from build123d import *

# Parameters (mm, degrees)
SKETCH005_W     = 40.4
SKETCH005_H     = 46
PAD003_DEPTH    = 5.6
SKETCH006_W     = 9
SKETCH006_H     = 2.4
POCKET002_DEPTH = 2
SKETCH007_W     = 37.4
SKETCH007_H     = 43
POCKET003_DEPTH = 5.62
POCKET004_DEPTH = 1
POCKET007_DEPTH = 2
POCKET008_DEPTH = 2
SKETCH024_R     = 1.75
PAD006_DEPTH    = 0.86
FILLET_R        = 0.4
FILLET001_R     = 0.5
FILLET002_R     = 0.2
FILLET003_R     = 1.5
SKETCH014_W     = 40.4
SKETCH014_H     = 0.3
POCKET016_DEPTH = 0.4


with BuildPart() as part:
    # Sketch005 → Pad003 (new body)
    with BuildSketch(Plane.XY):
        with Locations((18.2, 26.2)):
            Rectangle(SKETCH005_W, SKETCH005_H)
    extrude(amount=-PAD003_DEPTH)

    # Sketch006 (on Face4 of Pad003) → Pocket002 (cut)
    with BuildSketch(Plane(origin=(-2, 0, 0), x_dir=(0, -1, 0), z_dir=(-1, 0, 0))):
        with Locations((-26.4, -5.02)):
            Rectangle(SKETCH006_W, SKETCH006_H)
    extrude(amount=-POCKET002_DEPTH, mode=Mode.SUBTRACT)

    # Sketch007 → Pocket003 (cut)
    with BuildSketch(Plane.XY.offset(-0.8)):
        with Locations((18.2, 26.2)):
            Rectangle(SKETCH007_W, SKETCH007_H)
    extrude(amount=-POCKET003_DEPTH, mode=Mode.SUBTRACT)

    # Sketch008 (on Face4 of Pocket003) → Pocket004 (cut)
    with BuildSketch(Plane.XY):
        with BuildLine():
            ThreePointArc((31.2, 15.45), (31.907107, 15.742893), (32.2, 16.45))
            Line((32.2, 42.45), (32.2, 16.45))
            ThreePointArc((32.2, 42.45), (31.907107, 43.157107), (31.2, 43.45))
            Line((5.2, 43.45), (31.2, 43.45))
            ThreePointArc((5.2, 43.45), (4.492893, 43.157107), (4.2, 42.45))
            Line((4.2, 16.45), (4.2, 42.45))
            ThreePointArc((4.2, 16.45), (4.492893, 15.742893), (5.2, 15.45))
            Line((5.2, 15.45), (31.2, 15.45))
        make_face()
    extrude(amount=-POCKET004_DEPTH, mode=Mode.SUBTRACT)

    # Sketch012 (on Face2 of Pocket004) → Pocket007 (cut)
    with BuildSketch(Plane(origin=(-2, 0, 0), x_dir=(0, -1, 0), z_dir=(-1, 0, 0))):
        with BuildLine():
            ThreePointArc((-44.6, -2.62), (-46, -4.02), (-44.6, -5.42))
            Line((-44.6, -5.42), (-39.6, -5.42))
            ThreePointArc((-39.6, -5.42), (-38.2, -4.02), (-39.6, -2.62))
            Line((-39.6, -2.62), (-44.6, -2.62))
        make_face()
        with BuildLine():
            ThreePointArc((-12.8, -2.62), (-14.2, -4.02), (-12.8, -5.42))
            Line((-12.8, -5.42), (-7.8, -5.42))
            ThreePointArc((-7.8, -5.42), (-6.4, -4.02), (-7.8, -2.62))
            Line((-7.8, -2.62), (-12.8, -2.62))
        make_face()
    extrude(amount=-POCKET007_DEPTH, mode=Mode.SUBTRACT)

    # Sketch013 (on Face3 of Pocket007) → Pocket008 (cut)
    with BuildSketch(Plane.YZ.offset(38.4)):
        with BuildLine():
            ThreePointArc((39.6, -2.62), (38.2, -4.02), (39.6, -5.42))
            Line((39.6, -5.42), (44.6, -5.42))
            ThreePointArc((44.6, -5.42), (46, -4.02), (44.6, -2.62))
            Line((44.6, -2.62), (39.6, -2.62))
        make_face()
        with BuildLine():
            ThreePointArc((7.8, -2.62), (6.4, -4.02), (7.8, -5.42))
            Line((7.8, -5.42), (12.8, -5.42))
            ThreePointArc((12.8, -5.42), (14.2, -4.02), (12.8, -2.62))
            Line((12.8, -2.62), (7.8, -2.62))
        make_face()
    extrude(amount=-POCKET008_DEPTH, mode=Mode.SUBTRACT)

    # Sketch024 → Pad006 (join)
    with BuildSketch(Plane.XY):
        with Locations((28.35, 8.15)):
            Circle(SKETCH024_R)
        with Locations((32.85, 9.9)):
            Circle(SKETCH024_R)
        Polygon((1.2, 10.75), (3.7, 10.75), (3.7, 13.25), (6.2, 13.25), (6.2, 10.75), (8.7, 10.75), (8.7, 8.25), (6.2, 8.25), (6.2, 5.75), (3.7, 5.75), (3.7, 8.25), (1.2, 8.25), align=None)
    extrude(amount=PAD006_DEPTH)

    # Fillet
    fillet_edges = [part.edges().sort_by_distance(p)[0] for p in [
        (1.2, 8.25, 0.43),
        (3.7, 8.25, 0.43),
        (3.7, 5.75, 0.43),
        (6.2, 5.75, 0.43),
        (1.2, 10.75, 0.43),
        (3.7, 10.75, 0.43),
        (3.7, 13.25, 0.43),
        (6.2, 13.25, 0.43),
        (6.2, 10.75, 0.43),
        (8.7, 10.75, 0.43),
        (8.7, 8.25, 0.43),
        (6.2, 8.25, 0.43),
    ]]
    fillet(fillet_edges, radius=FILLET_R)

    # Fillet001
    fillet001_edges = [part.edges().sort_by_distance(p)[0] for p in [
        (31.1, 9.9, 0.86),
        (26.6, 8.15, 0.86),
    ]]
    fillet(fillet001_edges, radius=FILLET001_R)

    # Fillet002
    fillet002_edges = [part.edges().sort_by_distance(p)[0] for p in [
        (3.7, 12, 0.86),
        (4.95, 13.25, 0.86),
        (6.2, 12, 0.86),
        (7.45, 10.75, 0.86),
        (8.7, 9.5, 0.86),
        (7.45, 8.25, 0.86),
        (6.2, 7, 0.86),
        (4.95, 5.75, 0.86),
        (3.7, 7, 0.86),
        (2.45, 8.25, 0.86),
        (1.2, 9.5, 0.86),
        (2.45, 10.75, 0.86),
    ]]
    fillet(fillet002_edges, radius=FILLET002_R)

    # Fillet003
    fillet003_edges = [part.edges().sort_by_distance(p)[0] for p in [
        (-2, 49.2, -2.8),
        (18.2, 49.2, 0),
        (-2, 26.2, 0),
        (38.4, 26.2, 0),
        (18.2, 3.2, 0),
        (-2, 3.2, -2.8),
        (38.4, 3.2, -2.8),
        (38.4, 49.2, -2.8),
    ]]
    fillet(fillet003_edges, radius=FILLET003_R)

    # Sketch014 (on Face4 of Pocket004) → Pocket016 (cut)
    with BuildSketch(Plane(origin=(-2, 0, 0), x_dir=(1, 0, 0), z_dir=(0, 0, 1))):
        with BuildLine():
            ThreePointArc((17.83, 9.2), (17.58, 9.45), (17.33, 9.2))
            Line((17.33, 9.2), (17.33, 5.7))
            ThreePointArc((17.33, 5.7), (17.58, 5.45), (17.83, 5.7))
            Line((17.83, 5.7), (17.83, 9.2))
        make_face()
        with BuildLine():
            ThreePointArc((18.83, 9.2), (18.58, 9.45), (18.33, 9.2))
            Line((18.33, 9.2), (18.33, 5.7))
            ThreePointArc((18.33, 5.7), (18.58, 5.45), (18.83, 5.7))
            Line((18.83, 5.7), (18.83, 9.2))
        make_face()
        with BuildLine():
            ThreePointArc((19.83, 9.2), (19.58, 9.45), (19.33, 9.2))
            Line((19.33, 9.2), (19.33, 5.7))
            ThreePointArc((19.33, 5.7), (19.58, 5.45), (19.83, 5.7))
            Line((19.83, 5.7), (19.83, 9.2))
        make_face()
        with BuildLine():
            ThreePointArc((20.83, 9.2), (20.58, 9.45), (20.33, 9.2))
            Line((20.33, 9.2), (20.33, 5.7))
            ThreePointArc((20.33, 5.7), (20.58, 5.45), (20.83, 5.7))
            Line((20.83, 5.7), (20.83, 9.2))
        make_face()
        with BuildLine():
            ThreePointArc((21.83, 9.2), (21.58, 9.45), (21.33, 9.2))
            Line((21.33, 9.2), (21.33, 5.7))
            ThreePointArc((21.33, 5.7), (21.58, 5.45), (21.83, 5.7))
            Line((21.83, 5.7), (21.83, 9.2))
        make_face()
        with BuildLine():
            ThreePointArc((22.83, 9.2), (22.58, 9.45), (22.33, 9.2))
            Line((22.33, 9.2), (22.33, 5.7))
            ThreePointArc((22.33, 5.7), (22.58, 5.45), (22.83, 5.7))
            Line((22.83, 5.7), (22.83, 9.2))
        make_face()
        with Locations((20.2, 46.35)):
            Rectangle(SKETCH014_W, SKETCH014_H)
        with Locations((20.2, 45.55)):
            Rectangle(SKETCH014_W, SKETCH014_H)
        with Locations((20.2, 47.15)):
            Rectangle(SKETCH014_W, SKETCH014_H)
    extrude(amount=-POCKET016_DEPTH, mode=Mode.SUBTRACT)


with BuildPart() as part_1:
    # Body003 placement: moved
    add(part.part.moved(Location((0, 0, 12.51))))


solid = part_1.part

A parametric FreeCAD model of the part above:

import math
import FreeCAD as App
import Part
import Sketcher
from FreeCAD import Vector


def edges_at(feature, points):
    """Names of the edges that pass closest to the given points."""
    edges = feature.Shape.Edges
    near = lambda p: min(range(len(edges)), key=lambda i: edges[i].distToShape(Part.Vertex(*p))[0])
    return sorted({f"Edge{near(p) + 1}" for p in points})

doc = App.newDocument("Part")
body = doc.addObject("PartDesign::Body", "Body")

# Sketch on XY plane
sketch1 = doc.addObject("Sketcher::SketchObject", "Sketch")
body.addObject(sketch1)
sketch1.AttachmentSupport = (doc.XY_Plane, [""])
sketch1.MapMode = "FlatFace"
sketch1.addGeometry(Part.LineSegment(Vector(-2, 49.2, 0), Vector(-2, 3.2, 0)), False)
sketch1.addGeometry(Part.LineSegment(Vector(-2, 3.2, 0), Vector(38.4, 3.2, 0)), False)
sketch1.addGeometry(Part.LineSegment(Vector(38.4, 3.2, 0), Vector(38.4, 49.2, 0)), False)
sketch1.addGeometry(Part.LineSegment(Vector(38.4, 49.2, 0), Vector(-2, 49.2, 0)), False)
sketch1.addConstraint(Sketcher.Constraint("Coincident", 0, 2, 1, 1))
sketch1.addConstraint(Sketcher.Constraint("Coincident", 1, 2, 2, 1))
sketch1.addConstraint(Sketcher.Constraint("Coincident", 2, 2, 3, 1))
sketch1.addConstraint(Sketcher.Constraint("Coincident", 3, 2, 0, 1))
sketch1.addConstraint(Sketcher.Constraint("Vertical", 0))
sketch1.addConstraint(Sketcher.Constraint("Horizontal", 1))
sketch1.addConstraint(Sketcher.Constraint("Vertical", 2))
sketch1.addConstraint(Sketcher.Constraint("Horizontal", 3))
sketch1.addConstraint(Sketcher.Constraint("DistanceY", 0, 2, 0, 1, 46.0))
sketch1.addConstraint(Sketcher.Constraint("DistanceX", 1, 1, 1, 2, 40.4))
sketch1.addConstraint(Sketcher.Constraint("DistanceX", 0, 2, -1, 1, 2.0))
sketch1.addConstraint(Sketcher.Constraint("DistanceY", -1, 1, 0, 2, 3.2))
pad1 = doc.addObject("PartDesign::Pad", "Pad")
body.addObject(pad1)
pad1.Profile = sketch1
pad1.Length = 5.6
pad1.Reversed = True

# Sketch on YZ plane
sketch2 = doc.addObject("Sketcher::SketchObject", "Sketch001")
body.addObject(sketch2)
sketch2.AttachmentSupport = (doc.YZ_Plane, [""])
sketch2.MapMode = "FlatFace"
sketch2.AttachmentOffset = App.Placement(Vector(0, 0, -2), App.Rotation())
sketch2.addGeometry(Part.LineSegment(Vector(30.9, -3.82, 0), Vector(30.9, -6.22, 0)), False)
sketch2.addGeometry(Part.LineSegment(Vector(30.9, -6.22, 0), Vector(21.9, -6.22, 0)), False)
sketch2.addGeometry(Part.LineSegment(Vector(21.9, -6.22, 0), Vector(21.9, -3.82, 0)), False)
sketch2.addGeometry(Part.LineSegment(Vector(21.9, -3.82, 0), Vector(30.9, -3.82, 0)), False)
sketch2.addConstraint(Sketcher.Constraint("Coincident", 0, 2, 1, 1))
sketch2.addConstraint(Sketcher.Constraint("Coincident", 1, 2, 2, 1))
sketch2.addConstraint(Sketcher.Constraint("Coincident", 2, 2, 3, 1))
sketch2.addConstraint(Sketcher.Constraint("Coincident", 3, 2, 0, 1))
sketch2.addConstraint(Sketcher.Constraint("Vertical", 0))
sketch2.addConstraint(Sketcher.Constraint("Horizontal", 1))
sketch2.addConstraint(Sketcher.Constraint("Vertical", 2))
sketch2.addConstraint(Sketcher.Constraint("Horizontal", 3))
sketch2.addConstraint(Sketcher.Constraint("DistanceX", 1, 2, 1, 1, 9.0))
sketch2.addConstraint(Sketcher.Constraint("DistanceY", 0, 2, 0, 1, 2.4))
sketch2.addConstraint(Sketcher.Constraint("DistanceX", -1, 1, 0, 2, 30.9))
sketch2.addConstraint(Sketcher.Constraint("DistanceY", 0, 2, -1, 1, 6.22))
pocket1 = doc.addObject("PartDesign::Pocket", "Pocket")
body.addObject(pocket1)
pocket1.Profile = sketch2
pocket1.Length = 2
pocket1.Reversed = True

# Sketch on XY plane
sketch3 = doc.addObject("Sketcher::SketchObject", "Sketch002")
body.addObject(sketch3)
sketch3.AttachmentSupport = (doc.XY_Plane, [""])
sketch3.MapMode = "FlatFace"
sketch3.AttachmentOffset = App.Placement(Vector(0, 0, -0.8), App.Rotation())
sketch3.addGeometry(Part.LineSegment(Vector(-0.5, 47.7, 0), Vector(-0.5, 4.7, 0)), False)
sketch3.addGeometry(Part.LineSegment(Vector(-0.5, 4.7, 0), Vector(36.9, 4.7, 0)), False)
sketch3.addGeometry(Part.LineSegment(Vector(36.9, 4.7, 0), Vector(36.9, 47.7, 0)), False)
sketch3.addGeometry(Part.LineSegment(Vector(36.9, 47.7, 0), Vector(-0.5, 47.7, 0)), False)
sketch3.addConstraint(Sketcher.Constraint("Coincident", 0, 2, 1, 1))
sketch3.addConstraint(Sketcher.Constraint("Coincident", 1, 2, 2, 1))
sketch3.addConstraint(Sketcher.Constraint("Coincident", 2, 2, 3, 1))
sketch3.addConstraint(Sketcher.Constraint("Coincident", 3, 2, 0, 1))
sketch3.addConstraint(Sketcher.Constraint("Vertical", 0))
sketch3.addConstraint(Sketcher.Constraint("Horizontal", 1))
sketch3.addConstraint(Sketcher.Constraint("Vertical", 2))
sketch3.addConstraint(Sketcher.Constraint("Horizontal", 3))
sketch3.addConstraint(Sketcher.Constraint("DistanceY", 0, 2, 0, 1, 43.0))
sketch3.addConstraint(Sketcher.Constraint("DistanceX", 1, 1, 1, 2, 37.4))
sketch3.addConstraint(Sketcher.Constraint("DistanceX", 0, 2, -1, 1, 0.5))
sketch3.addConstraint(Sketcher.Constraint("DistanceY", -1, 1, 0, 2, 4.7))
pocket2 = doc.addObject("PartDesign::Pocket", "Pocket001")
body.addObject(pocket2)
pocket2.Profile = sketch3
pocket2.Length = 5.62

# Sketch on XY plane
sketch4 = doc.addObject("Sketcher::SketchObject", "Sketch003")
body.addObject(sketch4)
sketch4.AttachmentSupport = (doc.XY_Plane, [""])
sketch4.MapMode = "FlatFace"
sketch4.addGeometry(Part.ArcOfCircle(Part.Circle(Vector(31.200001, 16.449999, 0), Vector(0, 0, 1), 0.999999), math.radians(-90.000043), math.radians(0.000043)), False)
sketch4.addGeometry(Part.LineSegment(Vector(32.2, 16.45, 0), Vector(32.2, 42.45, 0)), False)
sketch4.addGeometry(Part.ArcOfCircle(Part.Circle(Vector(31.200001, 42.450001, 0), Vector(0, 0, 1), 0.999999), math.radians(-0.000043), math.radians(90.000043)), False)
sketch4.addGeometry(Part.LineSegment(Vector(31.2, 43.45, 0), Vector(5.2, 43.45, 0)), False)
sketch4.addGeometry(Part.ArcOfCircle(Part.Circle(Vector(5.199999, 42.450001, 0), Vector(0, 0, 1), 0.999999), math.radians(89.999957), math.radians(180.000043)), False)
sketch4.addGeometry(Part.LineSegment(Vector(4.2, 42.45, 0), Vector(4.2, 16.45, 0)), False)
sketch4.addGeometry(Part.ArcOfCircle(Part.Circle(Vector(5.199999, 16.449999, 0), Vector(0, 0, 1), 0.999999), math.radians(179.999957), math.radians(270.000043)), False)
sketch4.addGeometry(Part.LineSegment(Vector(5.2, 15.45, 0), Vector(31.2, 15.45, 0)), False)
sketch4.addConstraint(Sketcher.Constraint("Tangent", 0, 2, 1, 1))
sketch4.addConstraint(Sketcher.Constraint("Tangent", 1, 2, 2, 1))
sketch4.addConstraint(Sketcher.Constraint("Tangent", 2, 2, 3, 1))
sketch4.addConstraint(Sketcher.Constraint("Tangent", 3, 2, 4, 1))
sketch4.addConstraint(Sketcher.Constraint("Tangent", 4, 2, 5, 1))
sketch4.addConstraint(Sketcher.Constraint("Tangent", 5, 2, 6, 1))
sketch4.addConstraint(Sketcher.Constraint("Tangent", 6, 2, 7, 1))
sketch4.addConstraint(Sketcher.Constraint("Tangent", 7, 2, 0, 1))
sketch4.addConstraint(Sketcher.Constraint("Vertical", 1))
sketch4.addConstraint(Sketcher.Constraint("Horizontal", 3))
sketch4.addConstraint(Sketcher.Constraint("Vertical", 5))
sketch4.addConstraint(Sketcher.Constraint("Horizontal", 7))
sketch4.addConstraint(Sketcher.Constraint("Equal", 0, 2))
sketch4.addConstraint(Sketcher.Constraint("Equal", 2, 4))
sketch4.addConstraint(Sketcher.Constraint("Equal", 4, 6))
sketch4.addConstraint(Sketcher.Constraint("Equal", 7, 1))
sketch4.addConstraint(Sketcher.Constraint("Radius", 0, 0.999999))
sketch4.addConstraint(Sketcher.Constraint("DistanceX", 3, 2, 3, 1, 26.0))
sketch4.addConstraint(Sketcher.Constraint("DistanceX", -1, 1, 0, 3, 31.200001))
sketch4.addConstraint(Sketcher.Constraint("DistanceY", -1, 1, 0, 3, 16.449999))
pocket3 = doc.addObject("PartDesign::Pocket", "Pocket002")
body.addObject(pocket3)
pocket3.Profile = sketch4
pocket3.Length = 1

# Sketch on YZ plane
sketch5 = doc.addObject("Sketcher::SketchObject", "Sketch004")
body.addObject(sketch5)
sketch5.AttachmentSupport = (doc.YZ_Plane, [""])
sketch5.MapMode = "FlatFace"
sketch5.AttachmentOffset = App.Placement(Vector(0, 0, -2), App.Rotation())
sketch5.addGeometry(Part.ArcOfCircle(Part.Circle(Vector(44.6, -4.02, 0), Vector(0, 0, 1), 1.4), math.radians(-90), math.radians(90)), False)
sketch5.addGeometry(Part.LineSegment(Vector(44.6, -5.42, 0), Vector(39.6, -5.42, 0)), False)
sketch5.addGeometry(Part.ArcOfCircle(Part.Circle(Vector(39.6, -4.02, 0), Vector(0, 0, 1), 1.4), math.radians(90), math.radians(270)), False)
sketch5.addGeometry(Part.LineSegment(Vector(39.6, -2.62, 0), Vector(44.6, -2.62, 0)), False)
sketch5.addGeometry(Part.ArcOfCircle(Part.Circle(Vector(12.8, -4.02, 0), Vector(0, 0, 1), 1.4), math.radians(-90), math.radians(90)), False)
sketch5.addGeometry(Part.LineSegment(Vector(12.8, -5.42, 0), Vector(7.8, -5.42, 0)), False)
sketch5.addGeometry(Part.ArcOfCircle(Part.Circle(Vector(7.8, -4.02, 0), Vector(0, 0, 1), 1.4), math.radians(90), math.radians(270)), False)
sketch5.addGeometry(Part.LineSegment(Vector(7.8, -2.62, 0), Vector(12.8, -2.62, 0)), False)
sketch5.addConstraint(Sketcher.Constraint("Tangent", 0, 1, 1, 1))
sketch5.addConstraint(Sketcher.Constraint("Tangent", 1, 2, 2, 2))
sketch5.addConstraint(Sketcher.Constraint("Tangent", 2, 1, 3, 1))
sketch5.addConstraint(Sketcher.Constraint("Tangent", 3, 2, 0, 2))
sketch5.addConstraint(Sketcher.Constraint("Tangent", 4, 1, 5, 1))
sketch5.addConstraint(Sketcher.Constraint("Tangent", 5, 2, 6, 2))
sketch5.addConstraint(Sketcher.Constraint("Tangent", 6, 1, 7, 1))
sketch5.addConstraint(Sketcher.Constraint("Tangent", 7, 2, 4, 2))
sketch5.addConstraint(Sketcher.Constraint("Horizontal", 1))
sketch5.addConstraint(Sketcher.Constraint("Horizontal", 3))
sketch5.addConstraint(Sketcher.Constraint("Horizontal", 5))
sketch5.addConstraint(Sketcher.Constraint("Horizontal", 7))
sketch5.addConstraint(Sketcher.Constraint("Equal", 2, 4))
sketch5.addConstraint(Sketcher.Constraint("Horizontal", 2, 3, 4, 3))
sketch5.addConstraint(Sketcher.Constraint("Equal", 3, 5))
sketch5.addConstraint(Sketcher.Constraint("Radius", 0, 1.4))
sketch5.addConstraint(Sketcher.Constraint("DistanceX", 1, 2, 1, 1, 5.0))
sketch5.addConstraint(Sketcher.Constraint("DistanceX", -1, 1, 0, 3, 44.6))
sketch5.addConstraint(Sketcher.Constraint("DistanceX", -1, 1, 4, 3, 12.8))
sketch5.addConstraint(Sketcher.Constraint("DistanceY", 0, 3, -1, 1, 4.02))
pocket4 = doc.addObject("PartDesign::Pocket", "Pocket003")
body.addObject(pocket4)
pocket4.Profile = sketch5
pocket4.Length = 2
pocket4.Reversed = True

# Sketch on YZ plane
sketch6 = doc.addObject("Sketcher::SketchObject", "Sketch005")
body.addObject(sketch6)
sketch6.AttachmentSupport = (doc.YZ_Plane, [""])
sketch6.MapMode = "FlatFace"
sketch6.AttachmentOffset = App.Placement(Vector(0, 0, 38.4), App.Rotation())
sketch6.addGeometry(Part.ArcOfCircle(Part.Circle(Vector(39.6, -4.02, 0), Vector(0, 0, 1), 1.4), math.radians(90), math.radians(270)), False)
sketch6.addGeometry(Part.LineSegment(Vector(39.6, -5.42, 0), Vector(44.6, -5.42, 0)), False)
sketch6.addGeometry(Part.ArcOfCircle(Part.Circle(Vector(44.6, -4.02, 0), Vector(0, 0, 1), 1.4), math.radians(-90), math.radians(90)), False)
sketch6.addGeometry(Part.LineSegment(Vector(44.6, -2.62, 0), Vector(39.6, -2.62, 0)), False)
sketch6.addGeometry(Part.ArcOfCircle(Part.Circle(Vector(7.8, -4.02, 0), Vector(0, 0, 1), 1.4), math.radians(90), math.radians(270)), False)
sketch6.addGeometry(Part.LineSegment(Vector(7.8, -5.42, 0), Vector(12.8, -5.42, 0)), False)
sketch6.addGeometry(Part.ArcOfCircle(Part.Circle(Vector(12.8, -4.02, 0), Vector(0, 0, 1), 1.4), math.radians(-90), math.radians(90)), False)
sketch6.addGeometry(Part.LineSegment(Vector(12.8, -2.62, 0), Vector(7.8, -2.62, 0)), False)
sketch6.addConstraint(Sketcher.Constraint("Tangent", 0, 2, 1, 1))
sketch6.addConstraint(Sketcher.Constraint("Tangent", 1, 2, 2, 1))
sketch6.addConstraint(Sketcher.Constraint("Tangent", 2, 2, 3, 1))
sketch6.addConstraint(Sketcher.Constraint("Tangent", 3, 2, 0, 1))
sketch6.addConstraint(Sketcher.Constraint("Tangent", 4, 2, 5, 1))
sketch6.addConstraint(Sketcher.Constraint("Tangent", 5, 2, 6, 1))
sketch6.addConstraint(Sketcher.Constraint("Tangent", 6, 2, 7, 1))
sketch6.addConstraint(Sketcher.Constraint("Tangent", 7, 2, 4, 1))
sketch6.addConstraint(Sketcher.Constraint("Horizontal", 1))
sketch6.addConstraint(Sketcher.Constraint("Horizontal", 3))
sketch6.addConstraint(Sketcher.Constraint("Horizontal", 5))
sketch6.addConstraint(Sketcher.Constraint("Horizontal", 7))
sketch6.addConstraint(Sketcher.Constraint("Equal", 2, 4))
sketch6.addConstraint(Sketcher.Constraint("Horizontal", 2, 3, 4, 3))
sketch6.addConstraint(Sketcher.Constraint("Equal", 3, 5))
sketch6.addConstraint(Sketcher.Constraint("Radius", 0, 1.4))
sketch6.addConstraint(Sketcher.Constraint("DistanceX", 1, 1, 1, 2, 5.0))
sketch6.addConstraint(Sketcher.Constraint("DistanceX", -1, 1, 0, 3, 39.6))
sketch6.addConstraint(Sketcher.Constraint("DistanceX", -1, 1, 4, 3, 7.8))
sketch6.addConstraint(Sketcher.Constraint("DistanceY", 0, 3, -1, 1, 4.02))
pocket5 = doc.addObject("PartDesign::Pocket", "Pocket004")
body.addObject(pocket5)
pocket5.Profile = sketch6
pocket5.Length = 2

# Sketch on XY plane
sketch7 = doc.addObject("Sketcher::SketchObject", "Sketch006")
body.addObject(sketch7)
sketch7.AttachmentSupport = (doc.XY_Plane, [""])
sketch7.MapMode = "FlatFace"
sketch7.addGeometry(Part.Circle(Vector(28.35, 8.15, 0), Vector(0, 0, 1), 1.75), False)
sketch7.addGeometry(Part.Circle(Vector(32.85, 9.9, 0), Vector(0, 0, 1), 1.75), False)
sketch7.addGeometry(Part.LineSegment(Vector(3.7, 10.75, 0), Vector(1.2, 10.75, 0)), False)
sketch7.addGeometry(Part.LineSegment(Vector(1.2, 10.75, 0), Vector(1.2, 8.25, 0)), False)
sketch7.addGeometry(Part.LineSegment(Vector(1.2, 8.25, 0), Vector(3.7, 8.25, 0)), False)
sketch7.addGeometry(Part.LineSegment(Vector(3.7, 8.25, 0), Vector(3.7, 5.75, 0)), False)
sketch7.addGeometry(Part.LineSegment(Vector(3.7, 5.75, 0), Vector(6.2, 5.75, 0)), False)
sketch7.addGeometry(Part.LineSegment(Vector(6.2, 5.75, 0), Vector(6.2, 8.25, 0)), False)
sketch7.addGeometry(Part.LineSegment(Vector(6.2, 8.25, 0), Vector(8.7, 8.25, 0)), False)
sketch7.addGeometry(Part.LineSegment(Vector(8.7, 8.25, 0), Vector(8.7, 10.75, 0)), False)
sketch7.addGeometry(Part.LineSegment(Vector(8.7, 10.75, 0), Vector(6.2, 10.75, 0)), False)
sketch7.addGeometry(Part.LineSegment(Vector(6.2, 10.75, 0), Vector(6.2, 13.25, 0)), False)
sketch7.addGeometry(Part.LineSegment(Vector(6.2, 13.25, 0), Vector(3.7, 13.25, 0)), False)
sketch7.addGeometry(Part.LineSegment(Vector(3.7, 13.25, 0), Vector(3.7, 10.75, 0)), False)
sketch7.addConstraint(Sketcher.Constraint("Coincident", 2, 2, 3, 1))
sketch7.addConstraint(Sketcher.Constraint("Coincident", 3, 2, 4, 1))
sketch7.addConstraint(Sketcher.Constraint("Coincident", 4, 2, 5, 1))
sketch7.addConstraint(Sketcher.Constraint("Coincident", 5, 2, 6, 1))
sketch7.addConstraint(Sketcher.Constraint("Coincident", 6, 2, 7, 1))
sketch7.addConstraint(Sketcher.Constraint("Coincident", 7, 2, 8, 1))
sketch7.addConstraint(Sketcher.Constraint("Coincident", 8, 2, 9, 1))
sketch7.addConstraint(Sketcher.Constraint("Coincident", 9, 2, 10, 1))
sketch7.addConstraint(Sketcher.Constraint("Coincident", 10, 2, 11, 1))
sketch7.addConstraint(Sketcher.Constraint("Coincident", 11, 2, 12, 1))
sketch7.addConstraint(Sketcher.Constraint("Coincident", 12, 2, 13, 1))
sketch7.addConstraint(Sketcher.Constraint("Coincident", 13, 2, 2, 1))
sketch7.addConstraint(Sketcher.Constraint("Horizontal", 2))
sketch7.addConstraint(Sketcher.Constraint("Vertical", 3))
sketch7.addConstraint(Sketcher.Constraint("Horizontal", 4))
sketch7.addConstraint(Sketcher.Constraint("Vertical", 5))
sketch7.addConstraint(Sketcher.Constraint("Horizontal", 6))
sketch7.addConstraint(Sketcher.Constraint("Vertical", 7))
sketch7.addConstraint(Sketcher.Constraint("Horizontal", 8))
sketch7.addConstraint(Sketcher.Constraint("Vertical", 9))
sketch7.addConstraint(Sketcher.Constraint("Horizontal", 10))
sketch7.addConstraint(Sketcher.Constraint("Vertical", 11))
sketch7.addConstraint(Sketcher.Constraint("Horizontal", 12))
sketch7.addConstraint(Sketcher.Constraint("Vertical", 13))
sketch7.addConstraint(Sketcher.Constraint("Equal", 0, 1))
sketch7.addConstraint(Sketcher.Constraint("Horizontal", 4, 2, 7, 2))
sketch7.addConstraint(Sketcher.Constraint("Horizontal", 2, 2, 9, 2))
sketch7.addConstraint(Sketcher.Constraint("Vertical", 7, 2, 10, 2))
sketch7.addConstraint(Sketcher.Constraint("Vertical", 5, 2, 12, 2))
sketch7.addConstraint(Sketcher.Constraint("Equal", 4, 6))
sketch7.addConstraint(Sketcher.Constraint("Equal", 6, 8))
sketch7.addConstraint(Sketcher.Constraint("Equal", 12, 3))
sketch7.addConstraint(Sketcher.Constraint("Equal", 3, 5))
sketch7.addConstraint(Sketcher.Constraint("Equal", 9, 11))
sketch7.addConstraint(Sketcher.Constraint("Diameter", 0, 3.5))
sketch7.addConstraint(Sketcher.Constraint("DistanceX", 2, 2, 2, 1, 2.5))
sketch7.addConstraint(Sketcher.Constraint("DistanceY", -1, 1, 1, 3, 9.9))
sketch7.addConstraint(Sketcher.Constraint("DistanceX", -1, 1, 2, 2, 1.2))
sketch7.addConstraint(Sketcher.Constraint("DistanceX", 0, 3, 1, 3, 4.5))
sketch7.addConstraint(Sketcher.Constraint("DistanceY", 0, 3, 2, 2, 2.6))
sketch7.addConstraint(Sketcher.Constraint("DistanceX", -1, 1, 0, 3, 28.35))
sketch7.addConstraint(Sketcher.Constraint("DistanceY", -1, 1, 0, 3, 8.15))
pad2 = doc.addObject("PartDesign::Pad", "Pad001")
body.addObject(pad2)
pad2.Profile = sketch7
pad2.Length = 0.86
doc.recompute()

fillet = doc.addObject("PartDesign::Fillet", "Fillet")
body.addObject(fillet)
fillet.Base = (pad2, edges_at(pad2, [
    (1.2, 8.25, 0.43),
    (3.7, 8.25, 0.43),
    (3.7, 5.75, 0.43),
    (6.2, 5.75, 0.43),
    (1.2, 10.75, 0.43),
    (3.7, 10.75, 0.43),
    (3.7, 13.25, 0.43),
    (6.2, 13.25, 0.43),
    (6.2, 10.75, 0.43),
    (8.7, 10.75, 0.43),
    (8.7, 8.25, 0.43),
    (6.2, 8.25, 0.43),
]))
fillet.Radius = 0.4
doc.recompute()

fillet2 = doc.addObject("PartDesign::Fillet", "Fillet001")
body.addObject(fillet2)
fillet2.Base = (fillet, edges_at(fillet, [(31.1, 9.9, 0.86), (26.6, 8.15, 0.86)]))
fillet2.Radius = 0.5
doc.recompute()

fillet3 = doc.addObject("PartDesign::Fillet", "Fillet002")
body.addObject(fillet3)
fillet3.Base = (fillet2, edges_at(fillet2, [
    (3.7, 12, 0.86),
    (4.95, 13.25, 0.86),
    (6.2, 12, 0.86),
    (7.45, 10.75, 0.86),
    (8.7, 9.5, 0.86),
    (7.45, 8.25, 0.86),
    (6.2, 7, 0.86),
    (4.95, 5.75, 0.86),
    (3.7, 7, 0.86),
    (2.45, 8.25, 0.86),
    (1.2, 9.5, 0.86),
    (2.45, 10.75, 0.86),
]))
fillet3.Radius = 0.2
doc.recompute()

fillet4 = doc.addObject("PartDesign::Fillet", "Fillet003")
body.addObject(fillet4)
fillet4.Base = (fillet3, edges_at(fillet3, [
    (-2, 49.2, -2.8),
    (18.2, 49.2, 0),
    (-2, 26.2, 0),
    (38.4, 26.2, 0),
    (18.2, 3.2, 0),
    (-2, 3.2, -2.8),
    (38.4, 3.2, -2.8),
    (38.4, 49.2, -2.8),
]))
fillet4.Radius = 1.5

# Sketch on XY plane
sketch8 = doc.addObject("Sketcher::SketchObject", "Sketch007")
body.addObject(sketch8)
sketch8.AttachmentSupport = (doc.XY_Plane, [""])
sketch8.MapMode = "FlatFace"
sketch8.addGeometry(Part.ArcOfCircle(Part.Circle(Vector(15.58, 9.2, 0), Vector(0, 0, 1), 0.25), math.radians(0), math.radians(180)), False)
sketch8.addGeometry(Part.LineSegment(Vector(15.33, 9.2, 0), Vector(15.33, 5.7, 0)), False)
sketch8.addGeometry(Part.ArcOfCircle(Part.Circle(Vector(15.58, 5.7, 0), Vector(0, 0, 1), 0.25), math.radians(180), math.radians(360)), False)
sketch8.addGeometry(Part.LineSegment(Vector(15.83, 5.7, 0), Vector(15.83, 9.2, 0)), False)
sketch8.addGeometry(Part.ArcOfCircle(Part.Circle(Vector(16.58, 9.2, 0), Vector(0, 0, 1), 0.25), math.radians(0), math.radians(180)), False)
sketch8.addGeometry(Part.LineSegment(Vector(16.33, 9.2, 0), Vector(16.33, 5.7, 0)), False)
sketch8.addGeometry(Part.ArcOfCircle(Part.Circle(Vector(16.58, 5.7, 0), Vector(0, 0, 1), 0.25), math.radians(180), math.radians(360)), False)
sketch8.addGeometry(Part.LineSegment(Vector(16.83, 5.7, 0), Vector(16.83, 9.2, 0)), False)
sketch8.addGeometry(Part.ArcOfCircle(Part.Circle(Vector(17.58, 9.2, 0), Vector(0, 0, 1), 0.25), math.radians(0), math.radians(180)), False)
sketch8.addGeometry(Part.LineSegment(Vector(17.33, 9.2, 0), Vector(17.33, 5.7, 0)), False)
sketch8.addGeometry(Part.ArcOfCircle(Part.Circle(Vector(17.58, 5.7, 0), Vector(0, 0, 1), 0.25), math.radians(180), math.radians(360)), False)
sketch8.addGeometry(Part.LineSegment(Vector(17.83, 5.7, 0), Vector(17.83, 9.2, 0)), False)
sketch8.addGeometry(Part.ArcOfCircle(Part.Circle(Vector(18.58, 9.2, 0), Vector(0, 0, 1), 0.25), math.radians(0), math.radians(180)), False)
sketch8.addGeometry(Part.LineSegment(Vector(18.33, 9.2, 0), Vector(18.33, 5.7, 0)), False)
sketch8.addGeometry(Part.ArcOfCircle(Part.Circle(Vector(18.58, 5.7, 0), Vector(0, 0, 1), 0.25), math.radians(180), math.radians(360)), False)
sketch8.addGeometry(Part.LineSegment(Vector(18.83, 5.7, 0), Vector(18.83, 9.2, 0)), False)
sketch8.addGeometry(Part.ArcOfCircle(Part.Circle(Vector(19.58, 9.2, 0), Vector(0, 0, 1), 0.25), math.radians(0), math.radians(180)), False)
sketch8.addGeometry(Part.LineSegment(Vector(19.33, 9.2, 0), Vector(19.33, 5.7, 0)), False)
sketch8.addGeometry(Part.ArcOfCircle(Part.Circle(Vector(19.58, 5.7, 0), Vector(0, 0, 1), 0.25), math.radians(180), math.radians(360)), False)
sketch8.addGeometry(Part.LineSegment(Vector(19.83, 5.7, 0), Vector(19.83, 9.2, 0)), False)
sketch8.addGeometry(Part.ArcOfCircle(Part.Circle(Vector(20.58, 9.2, 0), Vector(0, 0, 1), 0.25), math.radians(0), math.radians(180)), False)
sketch8.addGeometry(Part.LineSegment(Vector(20.33, 9.2, 0), Vector(20.33, 5.7, 0)), False)
sketch8.addGeometry(Part.ArcOfCircle(Part.Circle(Vector(20.58, 5.7, 0), Vector(0, 0, 1), 0.25), math.radians(180), math.radians(360)), False)
sketch8.addGeometry(Part.LineSegment(Vector(20.83, 5.7, 0), Vector(20.83, 9.2, 0)), False)
sketch8.addGeometry(Part.LineSegment(Vector(-2, 46.5, 0), Vector(-2, 46.2, 0)), False)
sketch8.addGeometry(Part.LineSegment(Vector(-2, 46.2, 0), Vector(38.4, 46.2, 0)), False)
sketch8.addGeometry(Part.LineSegment(Vector(38.4, 46.2, 0), Vector(38.4, 46.5, 0)), False)
sketch8.addGeometry(Part.LineSegment(Vector(38.4, 46.5, 0), Vector(-2, 46.5, 0)), False)
sketch8.addGeometry(Part.LineSegment(Vector(-2, 45.7, 0), Vector(-2, 45.4, 0)), False)
sketch8.addGeometry(Part.LineSegment(Vector(-2, 45.4, 0), Vector(38.4, 45.4, 0)), False)
sketch8.addGeometry(Part.LineSegment(Vector(38.4, 45.4, 0), Vector(38.4, 45.7, 0)), False)
sketch8.addGeometry(Part.LineSegment(Vector(38.4, 45.7, 0), Vector(-2, 45.7, 0)), False)
sketch8.addGeometry(Part.LineSegment(Vector(-2, 47.3, 0), Vector(-2, 47, 0)), False)
sketch8.addGeometry(Part.LineSegment(Vector(-2, 47, 0), Vector(38.4, 47, 0)), False)
sketch8.addGeometry(Part.LineSegment(Vector(38.4, 47, 0), Vector(38.4, 47.3, 0)), False)
sketch8.addGeometry(Part.LineSegment(Vector(38.4, 47.3, 0), Vector(-2, 47.3, 0)), False)
sketch8.addConstraint(Sketcher.Constraint("Tangent", 0, 2, 1, 1))
sketch8.addConstraint(Sketcher.Constraint("Tangent", 1, 2, 2, 1))
sketch8.addConstraint(Sketcher.Constraint("Tangent", 2, 2, 3, 1))
sketch8.addConstraint(Sketcher.Constraint("Tangent", 3, 2, 0, 1))
sketch8.addConstraint(Sketcher.Constraint("Tangent", 4, 2, 5, 1))
sketch8.addConstraint(Sketcher.Constraint("Tangent", 5, 2, 6, 1))
sketch8.addConstraint(Sketcher.Constraint("Tangent", 6, 2, 7, 1))
sketch8.addConstraint(Sketcher.Constraint("Tangent", 7, 2, 4, 1))
sketch8.addConstraint(Sketcher.Constraint("Tangent", 8, 2, 9, 1))
sketch8.addConstraint(Sketcher.Constraint("Tangent", 9, 2, 10, 1))
sketch8.addConstraint(Sketcher.Constraint("Tangent", 10, 2, 11, 1))
sketch8.addConstraint(Sketcher.Constraint("Tangent", 11, 2, 8, 1))
sketch8.addConstraint(Sketcher.Constraint("Tangent", 12, 2, 13, 1))
sketch8.addConstraint(Sketcher.Constraint("Tangent", 13, 2, 14, 1))
sketch8.addConstraint(Sketcher.Constraint("Tangent", 14, 2, 15, 1))
sketch8.addConstraint(Sketcher.Constraint("Tangent", 15, 2, 12, 1))
sketch8.addConstraint(Sketcher.Constraint("Tangent", 16, 2, 17, 1))
sketch8.addConstraint(Sketcher.Constraint("Tangent", 17, 2, 18, 1))
sketch8.addConstraint(Sketcher.Constraint("Tangent", 18, 2, 19, 1))
sketch8.addConstraint(Sketcher.Constraint("Tangent", 19, 2, 16, 1))
sketch8.addConstraint(Sketcher.Constraint("Tangent", 20, 2, 21, 1))
sketch8.addConstraint(Sketcher.Constraint("Tangent", 21, 2, 22, 1))
sketch8.addConstraint(Sketcher.Constraint("Tangent", 22, 2, 23, 1))
sketch8.addConstraint(Sketcher.Constraint("Tangent", 23, 2, 20, 1))
sketch8.addConstraint(Sketcher.Constraint("Coincident", 24, 2, 25, 1))
sketch8.addConstraint(Sketcher.Constraint("Coincident", 25, 2, 26, 1))
sketch8.addConstraint(Sketcher.Constraint("Coincident", 26, 2, 27, 1))
sketch8.addConstraint(Sketcher.Constraint("Coincident", 27, 2, 24, 1))
sketch8.addConstraint(Sketcher.Constraint("Coincident", 28, 2, 29, 1))
sketch8.addConstraint(Sketcher.Constraint("Coincident", 29, 2, 30, 1))
sketch8.addConstraint(Sketcher.Constraint("Coincident", 30, 2, 31, 1))
sketch8.addConstraint(Sketcher.Constraint("Coincident", 31, 2, 28, 1))
sketch8.addConstraint(Sketcher.Constraint("Coincident", 32, 2, 33, 1))
sketch8.addConstraint(Sketcher.Constraint("Coincident", 33, 2, 34, 1))
sketch8.addConstraint(Sketcher.Constraint("Coincident", 34, 2, 35, 1))
sketch8.addConstraint(Sketcher.Constraint("Coincident", 35, 2, 32, 1))
sketch8.addConstraint(Sketcher.Constraint("Vertical", 1))
sketch8.addConstraint(Sketcher.Constraint("Vertical", 3))
sketch8.addConstraint(Sketcher.Constraint("Vertical", 5))
sketch8.addConstraint(Sketcher.Constraint("Vertical", 7))
sketch8.addConstraint(Sketcher.Constraint("Vertical", 9))
sketch8.addConstraint(Sketcher.Constraint("Vertical", 11))
sketch8.addConstraint(Sketcher.Constraint("Vertical", 13))
sketch8.addConstraint(Sketcher.Constraint("Vertical", 15))
sketch8.addConstraint(Sketcher.Constraint("Vertical", 17))
sketch8.addConstraint(Sketcher.Constraint("Vertical", 19))
sketch8.addConstraint(Sketcher.Constraint("Vertical", 21))
sketch8.addConstraint(Sketcher.Constraint("Vertical", 23))
sketch8.addConstraint(Sketcher.Constraint("Vertical", 24))
sketch8.addConstraint(Sketcher.Constraint("Horizontal", 25))
sketch8.addConstraint(Sketcher.Constraint("Vertical", 26))
sketch8.addConstraint(Sketcher.Constraint("Horizontal", 27))
sketch8.addConstraint(Sketcher.Constraint("Vertical", 28))
sketch8.addConstraint(Sketcher.Constraint("Horizontal", 29))
sketch8.addConstraint(Sketcher.Constraint("Vertical", 30))
sketch8.addConstraint(Sketcher.Constraint("Horizontal", 31))
sketch8.addConstraint(Sketcher.Constraint("Vertical", 32))
sketch8.addConstraint(Sketcher.Constraint("Horizontal", 33))
sketch8.addConstraint(Sketcher.Constraint("Vertical", 34))
sketch8.addConstraint(Sketcher.Constraint("Horizontal", 35))
sketch8.addConstraint(Sketcher.Constraint("Equal", 2, 4))
sketch8.addConstraint(Sketcher.Constraint("Equal", 6, 8))
sketch8.addConstraint(Sketcher.Constraint("Equal", 10, 12))
sketch8.addConstraint(Sketcher.Constraint("Equal", 14, 16))
sketch8.addConstraint(Sketcher.Constraint("Equal", 18, 20))
sketch8.addConstraint(Sketcher.Constraint("Horizontal", 0, 3, 4, 3))
sketch8.addConstraint(Sketcher.Constraint("Horizontal", 2, 3, 6, 3))
sketch8.addConstraint(Sketcher.Constraint("Horizontal", 4, 3, 8, 3))
sketch8.addConstraint(Sketcher.Constraint("Horizontal", 6, 3, 10, 3))
sketch8.addConstraint(Sketcher.Constraint("Horizontal", 8, 3, 12, 3))
sketch8.addConstraint(Sketcher.Constraint("Horizontal", 10, 3, 14, 3))
sketch8.addConstraint(Sketcher.Constraint("Horizontal", 12, 3, 16, 3))
sketch8.addConstraint(Sketcher.Constraint("Horizontal", 14, 3, 18, 3))
sketch8.addConstraint(Sketcher.Constraint("Horizontal", 16, 3, 20, 3))
sketch8.addConstraint(Sketcher.Constraint("Horizontal", 18, 3, 22, 3))
sketch8.addConstraint(Sketcher.Constraint("Vertical", 27, 2, 28, 2))
sketch8.addConstraint(Sketcher.Constraint("Vertical", 26, 2, 29, 2))
sketch8.addConstraint(Sketcher.Constraint("Vertical", 31, 2, 32, 2))
sketch8.addConstraint(Sketcher.Constraint("Vertical", 30, 2, 33, 2))
sketch8.addConstraint(Sketcher.Constraint("Equal", 26, 28))
sketch8.addConstraint(Sketcher.Constraint("Equal", 30, 32))
sketch8.addConstraint(Sketcher.Constraint("Radius", 0, 0.25))
sketch8.addConstraint(Sketcher.Constraint("DistanceX", 25, 1, 25, 2, 40.4))
sketch8.addConstraint(Sketcher.Constraint("DistanceY", 1, 2, 1, 1, 3.5))
sketch8.addConstraint(Sketcher.Constraint("DistanceY", 24, 2, 24, 1, 0.3))
sketch8.addConstraint(Sketcher.Constraint("DistanceX", 24, 2, -1, 1, 2.0))
sketch8.addConstraint(Sketcher.Constraint("DistanceY", -1, 1, 32, 2, 47.0))
sketch8.addConstraint(Sketcher.Constraint("DistanceX", 0, 3, 4, 3, 1.0))
sketch8.addConstraint(Sketcher.Constraint("DistanceX", 4, 3, 8, 3, 1.0))
sketch8.addConstraint(Sketcher.Constraint("DistanceX", 8, 3, 12, 3, 1.0))
sketch8.addConstraint(Sketcher.Constraint("DistanceX", 12, 3, 16, 3, 1.0))
sketch8.addConstraint(Sketcher.Constraint("DistanceX", 16, 3, 20, 3, 1.0))
sketch8.addConstraint(Sketcher.Constraint("DistanceY", 0, 2, 24, 2, 37.0))
sketch8.addConstraint(Sketcher.Constraint("DistanceY", -1, 1, 0, 3, 9.2))
sketch8.addConstraint(Sketcher.Constraint("DistanceY", -1, 1, 28, 2, 45.4))
sketch8.addConstraint(Sketcher.Constraint("DistanceX", -1, 1, 0, 3, 15.58))
pocket6 = doc.addObject("PartDesign::Pocket", "Pocket005")
body.addObject(pocket6)
pocket6.Profile = sketch8
pocket6.Length = 0.4
body2 = doc.addObject("PartDesign::Body", "Body001")
doc.recompute()

body.Placement = App.Placement(Vector(0, 0, 12.51), App.Rotation(Vector(0, 0, 1), 0))
boolean = doc.addObject("PartDesign::Boolean", "Boolean")
body2.addObject(boolean)
boolean.Type = "Fuse"
boolean.addObjects([body])

doc.recompute()
